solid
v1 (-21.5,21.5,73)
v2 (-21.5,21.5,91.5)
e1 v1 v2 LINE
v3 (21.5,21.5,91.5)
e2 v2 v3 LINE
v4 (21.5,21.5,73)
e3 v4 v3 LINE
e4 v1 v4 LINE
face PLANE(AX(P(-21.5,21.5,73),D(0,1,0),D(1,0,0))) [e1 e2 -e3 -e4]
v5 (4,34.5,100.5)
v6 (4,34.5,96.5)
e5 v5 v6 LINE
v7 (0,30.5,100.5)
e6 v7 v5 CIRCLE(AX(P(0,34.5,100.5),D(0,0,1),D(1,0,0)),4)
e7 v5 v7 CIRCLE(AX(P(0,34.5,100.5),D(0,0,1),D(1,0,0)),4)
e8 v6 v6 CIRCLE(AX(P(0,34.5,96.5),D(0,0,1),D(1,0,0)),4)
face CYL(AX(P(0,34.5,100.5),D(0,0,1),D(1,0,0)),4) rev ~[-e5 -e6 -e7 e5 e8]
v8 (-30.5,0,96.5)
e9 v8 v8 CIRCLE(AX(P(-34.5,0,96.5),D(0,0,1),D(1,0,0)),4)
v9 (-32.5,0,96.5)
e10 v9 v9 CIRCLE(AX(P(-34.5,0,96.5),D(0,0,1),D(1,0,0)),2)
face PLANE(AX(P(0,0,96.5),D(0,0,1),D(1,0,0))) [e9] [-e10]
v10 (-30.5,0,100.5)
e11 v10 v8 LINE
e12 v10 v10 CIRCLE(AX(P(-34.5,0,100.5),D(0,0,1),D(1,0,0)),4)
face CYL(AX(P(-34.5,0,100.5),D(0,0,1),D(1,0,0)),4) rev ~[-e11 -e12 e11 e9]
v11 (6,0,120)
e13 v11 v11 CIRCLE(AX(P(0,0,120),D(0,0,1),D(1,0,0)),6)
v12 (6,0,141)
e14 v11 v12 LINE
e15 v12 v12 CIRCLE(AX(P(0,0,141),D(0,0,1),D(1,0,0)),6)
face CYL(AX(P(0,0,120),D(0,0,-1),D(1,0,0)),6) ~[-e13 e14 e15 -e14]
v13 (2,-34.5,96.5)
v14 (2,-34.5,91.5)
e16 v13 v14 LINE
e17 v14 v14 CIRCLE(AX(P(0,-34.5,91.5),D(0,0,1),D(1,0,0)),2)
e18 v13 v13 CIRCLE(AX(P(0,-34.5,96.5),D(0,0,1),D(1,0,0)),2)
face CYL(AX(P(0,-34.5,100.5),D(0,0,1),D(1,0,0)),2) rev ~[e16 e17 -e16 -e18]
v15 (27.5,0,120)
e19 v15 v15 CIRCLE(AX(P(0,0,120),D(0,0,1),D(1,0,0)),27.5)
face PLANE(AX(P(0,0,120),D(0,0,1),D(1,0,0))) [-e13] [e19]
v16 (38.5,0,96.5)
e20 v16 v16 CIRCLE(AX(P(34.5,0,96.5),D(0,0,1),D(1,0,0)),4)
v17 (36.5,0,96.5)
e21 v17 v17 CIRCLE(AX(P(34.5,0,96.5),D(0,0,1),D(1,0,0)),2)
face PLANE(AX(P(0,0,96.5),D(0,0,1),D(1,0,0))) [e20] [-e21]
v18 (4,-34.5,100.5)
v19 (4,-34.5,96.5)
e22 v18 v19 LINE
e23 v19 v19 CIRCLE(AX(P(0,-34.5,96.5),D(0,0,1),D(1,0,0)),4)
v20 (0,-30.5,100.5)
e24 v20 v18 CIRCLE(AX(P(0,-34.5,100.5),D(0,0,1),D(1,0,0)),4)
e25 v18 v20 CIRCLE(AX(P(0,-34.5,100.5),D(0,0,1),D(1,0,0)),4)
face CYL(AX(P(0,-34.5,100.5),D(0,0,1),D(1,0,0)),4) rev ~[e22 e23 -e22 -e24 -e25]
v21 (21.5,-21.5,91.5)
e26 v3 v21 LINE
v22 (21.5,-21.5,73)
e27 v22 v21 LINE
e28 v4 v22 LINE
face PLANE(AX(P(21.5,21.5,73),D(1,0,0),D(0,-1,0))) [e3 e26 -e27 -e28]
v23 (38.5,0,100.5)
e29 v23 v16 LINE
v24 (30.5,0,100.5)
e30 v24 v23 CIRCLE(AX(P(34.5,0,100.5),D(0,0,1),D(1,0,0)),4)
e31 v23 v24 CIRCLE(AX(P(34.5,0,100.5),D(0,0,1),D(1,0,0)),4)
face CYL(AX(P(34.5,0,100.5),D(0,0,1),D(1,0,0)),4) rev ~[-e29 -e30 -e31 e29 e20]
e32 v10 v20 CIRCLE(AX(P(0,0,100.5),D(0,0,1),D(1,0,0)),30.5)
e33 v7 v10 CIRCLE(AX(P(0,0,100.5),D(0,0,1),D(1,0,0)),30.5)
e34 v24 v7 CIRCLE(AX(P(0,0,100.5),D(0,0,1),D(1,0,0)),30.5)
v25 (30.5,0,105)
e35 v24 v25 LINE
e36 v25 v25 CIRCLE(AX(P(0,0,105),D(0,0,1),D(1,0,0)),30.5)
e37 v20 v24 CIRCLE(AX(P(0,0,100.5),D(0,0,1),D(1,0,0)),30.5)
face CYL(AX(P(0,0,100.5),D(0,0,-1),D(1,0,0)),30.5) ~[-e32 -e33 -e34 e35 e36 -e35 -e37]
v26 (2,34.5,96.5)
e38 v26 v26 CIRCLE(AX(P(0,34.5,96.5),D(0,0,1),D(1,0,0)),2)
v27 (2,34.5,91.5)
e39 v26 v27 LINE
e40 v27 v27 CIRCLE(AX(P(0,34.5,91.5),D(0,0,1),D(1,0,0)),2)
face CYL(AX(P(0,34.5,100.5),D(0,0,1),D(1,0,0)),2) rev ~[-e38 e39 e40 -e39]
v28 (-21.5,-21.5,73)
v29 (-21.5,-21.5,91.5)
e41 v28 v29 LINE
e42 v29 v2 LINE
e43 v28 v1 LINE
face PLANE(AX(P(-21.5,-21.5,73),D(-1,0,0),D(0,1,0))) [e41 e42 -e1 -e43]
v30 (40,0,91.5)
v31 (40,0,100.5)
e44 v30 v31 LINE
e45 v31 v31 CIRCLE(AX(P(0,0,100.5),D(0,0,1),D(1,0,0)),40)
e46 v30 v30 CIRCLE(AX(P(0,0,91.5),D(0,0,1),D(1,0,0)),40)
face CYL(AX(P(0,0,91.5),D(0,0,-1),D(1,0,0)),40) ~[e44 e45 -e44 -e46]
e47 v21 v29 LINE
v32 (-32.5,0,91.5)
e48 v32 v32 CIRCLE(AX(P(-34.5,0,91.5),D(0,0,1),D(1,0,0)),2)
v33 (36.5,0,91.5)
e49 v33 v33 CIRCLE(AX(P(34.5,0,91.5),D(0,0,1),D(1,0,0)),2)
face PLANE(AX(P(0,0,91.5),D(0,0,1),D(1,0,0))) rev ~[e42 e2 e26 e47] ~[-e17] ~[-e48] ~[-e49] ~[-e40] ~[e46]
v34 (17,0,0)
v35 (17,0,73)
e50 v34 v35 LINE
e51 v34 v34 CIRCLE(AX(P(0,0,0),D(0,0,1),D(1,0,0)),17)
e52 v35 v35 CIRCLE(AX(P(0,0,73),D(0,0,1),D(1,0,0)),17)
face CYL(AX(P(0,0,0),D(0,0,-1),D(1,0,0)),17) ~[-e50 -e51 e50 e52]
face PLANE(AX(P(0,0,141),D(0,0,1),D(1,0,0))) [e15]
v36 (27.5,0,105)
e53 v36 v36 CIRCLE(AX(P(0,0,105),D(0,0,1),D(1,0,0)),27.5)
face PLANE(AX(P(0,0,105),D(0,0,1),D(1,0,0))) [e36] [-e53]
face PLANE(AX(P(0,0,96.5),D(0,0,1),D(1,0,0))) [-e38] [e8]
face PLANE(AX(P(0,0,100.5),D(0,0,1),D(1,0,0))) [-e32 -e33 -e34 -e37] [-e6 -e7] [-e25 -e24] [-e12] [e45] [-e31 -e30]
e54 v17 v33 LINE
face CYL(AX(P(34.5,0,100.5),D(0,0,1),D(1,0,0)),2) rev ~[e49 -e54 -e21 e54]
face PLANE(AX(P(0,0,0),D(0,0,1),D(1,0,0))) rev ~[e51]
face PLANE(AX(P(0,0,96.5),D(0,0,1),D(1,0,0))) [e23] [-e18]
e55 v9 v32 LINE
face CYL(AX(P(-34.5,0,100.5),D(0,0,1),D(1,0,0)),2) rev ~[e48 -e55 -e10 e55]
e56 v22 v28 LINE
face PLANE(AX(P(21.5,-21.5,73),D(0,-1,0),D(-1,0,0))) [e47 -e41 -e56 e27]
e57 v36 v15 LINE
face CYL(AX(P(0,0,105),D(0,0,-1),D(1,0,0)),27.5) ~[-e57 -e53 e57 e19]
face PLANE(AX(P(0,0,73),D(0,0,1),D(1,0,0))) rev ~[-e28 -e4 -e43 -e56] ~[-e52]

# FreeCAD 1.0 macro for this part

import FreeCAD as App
import Part
import Sketcher

V = App.Vector

doc = App.newDocument("Part")
params = doc.addObject("Spreadsheet::Sheet", "Params")
for row, (alias, value) in enumerate([
    ("sketch1_diameter", "34 mm"),
    ("pad1_length", "73 mm"),
    ("sketch2_width", "43 mm"),
    ("pad2_length", "18.5 mm"),
    ("sketch3_diameter", "80 mm"),
    ("pad3_length", "9 mm"),
    ("sketch4_diameter", "61 mm"),
    ("pad4_length", "4.5 mm"),
    ("sketch5_diameter", "55 mm"),
    ("pad5_length", "15 mm"),
    ("sketch6_diameter", "12 mm"),
    ("pad6_length", "21 mm"),
    ("sketch7_diameter", "4 mm"),
    ("pocket1_length", "9 mm"),
    ("sketch8_diameter", "8 mm"),
    ("pocket2_length", "4 mm"),
], start=1):
    params.set(f"A{row}", alias)
    params.set(f"B{row}", "=" + value)
    params.setAlias(f"B{row}", alias)

body = doc.addObject("PartDesign::Body", "Body")

# Sketch on XY plane
sketch1 = body.newObject("Sketcher::SketchObject", "Sketch")
sketch1.AttachmentSupport = (doc.getObject("XY_Plane"), [""])
sketch1.MapMode = "FlatFace"
sketch1.addGeometry(Part.Circle(V(0, 0, 0), V(0, 0, 1), 17), False)
sketch1.addConstraint([
    Sketcher.Constraint("Coincident", 0, 3, -1, 1),
    Sketcher.Constraint("Diameter", 0, 34.0),
])
sketch1.setExpression("Constraints[1]", "Params.sketch1_diameter")
pad1 = body.newObject("PartDesign::Pad", "Pad")
pad1.Profile = sketch1
pad1.setExpression("Length", "Params.pad1_length")

# Sketch on XY plane
sketch2 = body.newObject("Sketcher::SketchObject", "Sketch001")
sketch2.AttachmentSupport = (doc.getObject("XY_Plane"), [""])
sketch2.MapMode = "FlatFace"
sketch2.AttachmentOffset = App.Placement(V(0, 0, 73), App.Rotation())
sketch2.addGeometry([
    Part.LineSegment(V(21.5, 21.5, 0), V(-21.5, 21.5, 0)),
    Part.LineSegment(V(-21.5, 21.5, 0), V(-21.5, -21.5, 0)),
    Part.LineSegment(V(-21.5, -21.5, 0), V(21.5, -21.5, 0)),
    Part.LineSegment(V(21.5, -21.5, 0), V(21.5, 21.5, 0)),
], False)
sketch2.addConstraint([
    Sketcher.Constraint("Coincident", 0, 2, 1, 1),
    Sketcher.Constraint("Coincident", 1, 2, 2, 1),
    Sketcher.Constraint("Coincident", 2, 2, 3, 1),
    Sketcher.Constraint("Coincident", 3, 2, 0, 1),
    Sketcher.Constraint("Horizontal", 0),
    Sketcher.Constraint("Vertical", 1),
    Sketcher.Constraint("Horizontal", 2),
    Sketcher.Constraint("Vertical", 3),
    Sketcher.Constraint("Symmetric", 0, 2, 2, 2, -1, 1),
    Sketcher.Constraint("Equal", 2, 1),
    Sketcher.Constraint("DistanceX", 0, 2, 0, 1, 43.0),
])
sketch2.setExpression("Constraints[10]", "Params.sketch2_width")
pad2 = body.newObject("PartDesign::Pad", "Pad001")
pad2.Profile = sketch2
pad2.setExpression("Length", "Params.pad2_length")

# Sketch on XY plane
sketch3 = body.newObject("Sketcher::SketchObject", "Sketch002")
sketch3.AttachmentSupport = (doc.getObject("XY_Plane"), [""])
sketch3.MapMode = "FlatFace"
sketch3.AttachmentOffset = App.Placement(V(0, 0, 91.5), App.Rotation())
sketch3.addGeometry(Part.Circle(V(0, 0, 0), V(0, 0, 1), 40), False)
sketch3.addConstraint([
    Sketcher.Constraint("Coincident", 0, 3, -1, 1),
    Sketcher.Constraint("Diameter", 0, 80.0),
])
sketch3.setExpression("Constraints[1]", "Params.sketch3_diameter")
pad3 = body.newObject("PartDesign::Pad", "Pad002")
pad3.Profile = sketch3
pad3.setExpression("Length", "Params.pad3_length")

# Sketch on XY plane
sketch4 = body.newObject("Sketcher::SketchObject", "Sketch003")
sketch4.AttachmentSupport = (doc.getObject("XY_Plane"), [""])
sketch4.MapMode = "FlatFace"
sketch4.AttachmentOffset = App.Placement(V(0, 0, 100.5), App.Rotation())
sketch4.addGeometry(Part.Circle(V(0, 0, 0), V(0, 0, 1), 30.5), False)
sketch4.addConstraint([
    Sketcher.Constraint("Coincident", 0, 3, -1, 1),
    Sketcher.Constraint("Diameter", 0, 61.0),
])
sketch4.setExpression("Constraints[1]", "Params.sketch4_diameter")
pad4 = body.newObject("PartDesign::Pad", "Pad003")
pad4.Profile = sketch4
pad4.setExpression("Length", "Params.pad4_length")

# Sketch on XY plane
sketch5 = body.newObject("Sketcher::SketchObject", "Sketch004")
sketch5.AttachmentSupport = (doc.getObject("XY_Plane"), [""])
sketch5.MapMode = "FlatFace"
sketch5.AttachmentOffset = App.Placement(V(0, 0, 105), App.Rotation())
sketch5.addGeometry(Part.Circle(V(0, 0, 0), V(0, 0, 1), 27.5), False)
sketch5.addConstraint([
    Sketcher.Constraint("Coincident", 0, 3, -1, 1),
    Sketcher.Constraint("Diameter", 0, 55.0),
])
sketch5.setExpression("Constraints[1]", "Params.sketch5_diameter")
pad5 = body.newObject("PartDesign::Pad", "Pad004")
pad5.Profile = sketch5
pad5.setExpression("Length", "Params.pad5_length")

# Sketch on XY plane
sketch6 = body.newObject("Sketcher::SketchObject", "Sketch005")
sketch6.AttachmentSupport = (doc.getObject("XY_Plane"), [""])
sketch6.MapMode = "FlatFace"
sketch6.AttachmentOffset = App.Placement(V(0, 0, 120), App.Rotation())
sketch6.addGeometry(Part.Circle(V(0, 0, 0), V(0, 0, 1), 6), False)
sketch6.addConstraint([
    Sketcher.Constraint("Coincident", 0, 3, -1, 1),
    Sketcher.Constraint("Diameter", 0, 12.0),
])
sketch6.setExpression("Constraints[1]", "Params.sketch6_diameter")
pad6 = body.newObject("PartDesign::Pad", "Pad005")
pad6.Profile = sketch6
pad6.setExpression("Length", "Params.pad6_length")

# Sketch on XY plane
sketch7 = body.newObject("Sketcher::SketchObject", "Sketch006")
sketch7.AttachmentSupport = (doc.getObject("XY_Plane"), [""])
sketch7.MapMode = "FlatFace"
sketch7.AttachmentOffset = App.Placement(V(0, 0, 100.5), App.Rotation())
sketch7.addGeometry([
    Part.Circle(V(-34.5, 0, 0), V(0, 0, 1), 2),
    Part.Circle(V(0, -34.5, 0), V(0, 0, 1), 2),
    Part.Circle(V(34.5, 0, 0), V(0, 0, 1), 2),
    Part.Circle(V(0, 34.5, 0), V(0, 0, 1), 2),
], False)
sketch7.addConstraint([
    Sketcher.Constraint("Equal", 0, 1),
    Sketcher.Constraint("Equal", 1, 2),
    Sketcher.Constraint("Equal", 2, 3),
    Sketcher.Constraint("Symmetric", 0, 3, 2, 3, -1, 1),
    Sketcher.Constraint("Symmetric", 1, 3, 3, 3, -1, 1),
    Sketcher.Constraint("PointOnObject", 0, 3, -1),
    Sketcher.Constraint("PointOnObject", 1, 3, -2),
    Sketcher.Constraint("Diameter", 0, 4.0),
    Sketcher.Constraint("DistanceX", 0, 3, 2, 3, 69.0),
    Sketcher.Constraint("DistanceY", 1, 3, 3, 3, 69.0),
])
sketch7.setExpression("Constraints[7]", "Params.sketch7_diameter")
pocket1 = body.newObject("PartDesign::Pocket", "Pocket")
pocket1.Profile = sketch7
pocket1.setExpression("Length", "Params.pocket1_length")

# Sketch on XY plane
sketch8 = body.newObject("Sketcher::SketchObject", "Sketch007")
sketch8.AttachmentSupport = (doc.getObject("XY_Plane"), [""])
sketch8.MapMode = "FlatFace"
sketch8.AttachmentOffset = App.Placement(V(0, 0, 100.5), App.Rotation())
sketch8.addGeometry([
    Part.Circle(V(-34.5, 0, 0), V(0, 0, 1), 4),
    Part.Circle(V(0, -34.5, 0), V(0, 0, 1), 4),
    Part.Circle(V(34.5, 0, 0), V(0, 0, 1), 4),
    Part.Circle(V(0, 34.5, 0), V(0, 0, 1), 4),
], False)
sketch8.addConstraint([
    Sketcher.Constraint("Equal", 0, 1),
    Sketcher.Constraint("Equal", 1, 2),
    Sketcher.Constraint("Equal", 2, 3),
    Sketcher.Constraint("Symmetric", 0, 3, 2, 3, -1, 1),
    Sketcher.Constraint("Symmetric", 1, 3, 3, 3, -1, 1),
    Sketcher.Constraint("PointOnObject", 0, 3, -1),
    Sketcher.Constraint("PointOnObject", 1, 3, -2),
    Sketcher.Constraint("Diameter", 0, 8.0),
    Sketcher.Constraint("DistanceX", 0, 3, 2, 3, 69.0),
    Sketcher.Constraint("DistanceY", 1, 3, 3, 3, 69.0),
])
sketch8.setExpression("Constraints[7]", "Params.sketch8_diameter")
pocket2 = body.newObject("PartDesign::Pocket", "Pocket001")
pocket2.Profile = sketch8
pocket2.setExpression("Length", "Params.pocket2_length")

doc.recompute()
